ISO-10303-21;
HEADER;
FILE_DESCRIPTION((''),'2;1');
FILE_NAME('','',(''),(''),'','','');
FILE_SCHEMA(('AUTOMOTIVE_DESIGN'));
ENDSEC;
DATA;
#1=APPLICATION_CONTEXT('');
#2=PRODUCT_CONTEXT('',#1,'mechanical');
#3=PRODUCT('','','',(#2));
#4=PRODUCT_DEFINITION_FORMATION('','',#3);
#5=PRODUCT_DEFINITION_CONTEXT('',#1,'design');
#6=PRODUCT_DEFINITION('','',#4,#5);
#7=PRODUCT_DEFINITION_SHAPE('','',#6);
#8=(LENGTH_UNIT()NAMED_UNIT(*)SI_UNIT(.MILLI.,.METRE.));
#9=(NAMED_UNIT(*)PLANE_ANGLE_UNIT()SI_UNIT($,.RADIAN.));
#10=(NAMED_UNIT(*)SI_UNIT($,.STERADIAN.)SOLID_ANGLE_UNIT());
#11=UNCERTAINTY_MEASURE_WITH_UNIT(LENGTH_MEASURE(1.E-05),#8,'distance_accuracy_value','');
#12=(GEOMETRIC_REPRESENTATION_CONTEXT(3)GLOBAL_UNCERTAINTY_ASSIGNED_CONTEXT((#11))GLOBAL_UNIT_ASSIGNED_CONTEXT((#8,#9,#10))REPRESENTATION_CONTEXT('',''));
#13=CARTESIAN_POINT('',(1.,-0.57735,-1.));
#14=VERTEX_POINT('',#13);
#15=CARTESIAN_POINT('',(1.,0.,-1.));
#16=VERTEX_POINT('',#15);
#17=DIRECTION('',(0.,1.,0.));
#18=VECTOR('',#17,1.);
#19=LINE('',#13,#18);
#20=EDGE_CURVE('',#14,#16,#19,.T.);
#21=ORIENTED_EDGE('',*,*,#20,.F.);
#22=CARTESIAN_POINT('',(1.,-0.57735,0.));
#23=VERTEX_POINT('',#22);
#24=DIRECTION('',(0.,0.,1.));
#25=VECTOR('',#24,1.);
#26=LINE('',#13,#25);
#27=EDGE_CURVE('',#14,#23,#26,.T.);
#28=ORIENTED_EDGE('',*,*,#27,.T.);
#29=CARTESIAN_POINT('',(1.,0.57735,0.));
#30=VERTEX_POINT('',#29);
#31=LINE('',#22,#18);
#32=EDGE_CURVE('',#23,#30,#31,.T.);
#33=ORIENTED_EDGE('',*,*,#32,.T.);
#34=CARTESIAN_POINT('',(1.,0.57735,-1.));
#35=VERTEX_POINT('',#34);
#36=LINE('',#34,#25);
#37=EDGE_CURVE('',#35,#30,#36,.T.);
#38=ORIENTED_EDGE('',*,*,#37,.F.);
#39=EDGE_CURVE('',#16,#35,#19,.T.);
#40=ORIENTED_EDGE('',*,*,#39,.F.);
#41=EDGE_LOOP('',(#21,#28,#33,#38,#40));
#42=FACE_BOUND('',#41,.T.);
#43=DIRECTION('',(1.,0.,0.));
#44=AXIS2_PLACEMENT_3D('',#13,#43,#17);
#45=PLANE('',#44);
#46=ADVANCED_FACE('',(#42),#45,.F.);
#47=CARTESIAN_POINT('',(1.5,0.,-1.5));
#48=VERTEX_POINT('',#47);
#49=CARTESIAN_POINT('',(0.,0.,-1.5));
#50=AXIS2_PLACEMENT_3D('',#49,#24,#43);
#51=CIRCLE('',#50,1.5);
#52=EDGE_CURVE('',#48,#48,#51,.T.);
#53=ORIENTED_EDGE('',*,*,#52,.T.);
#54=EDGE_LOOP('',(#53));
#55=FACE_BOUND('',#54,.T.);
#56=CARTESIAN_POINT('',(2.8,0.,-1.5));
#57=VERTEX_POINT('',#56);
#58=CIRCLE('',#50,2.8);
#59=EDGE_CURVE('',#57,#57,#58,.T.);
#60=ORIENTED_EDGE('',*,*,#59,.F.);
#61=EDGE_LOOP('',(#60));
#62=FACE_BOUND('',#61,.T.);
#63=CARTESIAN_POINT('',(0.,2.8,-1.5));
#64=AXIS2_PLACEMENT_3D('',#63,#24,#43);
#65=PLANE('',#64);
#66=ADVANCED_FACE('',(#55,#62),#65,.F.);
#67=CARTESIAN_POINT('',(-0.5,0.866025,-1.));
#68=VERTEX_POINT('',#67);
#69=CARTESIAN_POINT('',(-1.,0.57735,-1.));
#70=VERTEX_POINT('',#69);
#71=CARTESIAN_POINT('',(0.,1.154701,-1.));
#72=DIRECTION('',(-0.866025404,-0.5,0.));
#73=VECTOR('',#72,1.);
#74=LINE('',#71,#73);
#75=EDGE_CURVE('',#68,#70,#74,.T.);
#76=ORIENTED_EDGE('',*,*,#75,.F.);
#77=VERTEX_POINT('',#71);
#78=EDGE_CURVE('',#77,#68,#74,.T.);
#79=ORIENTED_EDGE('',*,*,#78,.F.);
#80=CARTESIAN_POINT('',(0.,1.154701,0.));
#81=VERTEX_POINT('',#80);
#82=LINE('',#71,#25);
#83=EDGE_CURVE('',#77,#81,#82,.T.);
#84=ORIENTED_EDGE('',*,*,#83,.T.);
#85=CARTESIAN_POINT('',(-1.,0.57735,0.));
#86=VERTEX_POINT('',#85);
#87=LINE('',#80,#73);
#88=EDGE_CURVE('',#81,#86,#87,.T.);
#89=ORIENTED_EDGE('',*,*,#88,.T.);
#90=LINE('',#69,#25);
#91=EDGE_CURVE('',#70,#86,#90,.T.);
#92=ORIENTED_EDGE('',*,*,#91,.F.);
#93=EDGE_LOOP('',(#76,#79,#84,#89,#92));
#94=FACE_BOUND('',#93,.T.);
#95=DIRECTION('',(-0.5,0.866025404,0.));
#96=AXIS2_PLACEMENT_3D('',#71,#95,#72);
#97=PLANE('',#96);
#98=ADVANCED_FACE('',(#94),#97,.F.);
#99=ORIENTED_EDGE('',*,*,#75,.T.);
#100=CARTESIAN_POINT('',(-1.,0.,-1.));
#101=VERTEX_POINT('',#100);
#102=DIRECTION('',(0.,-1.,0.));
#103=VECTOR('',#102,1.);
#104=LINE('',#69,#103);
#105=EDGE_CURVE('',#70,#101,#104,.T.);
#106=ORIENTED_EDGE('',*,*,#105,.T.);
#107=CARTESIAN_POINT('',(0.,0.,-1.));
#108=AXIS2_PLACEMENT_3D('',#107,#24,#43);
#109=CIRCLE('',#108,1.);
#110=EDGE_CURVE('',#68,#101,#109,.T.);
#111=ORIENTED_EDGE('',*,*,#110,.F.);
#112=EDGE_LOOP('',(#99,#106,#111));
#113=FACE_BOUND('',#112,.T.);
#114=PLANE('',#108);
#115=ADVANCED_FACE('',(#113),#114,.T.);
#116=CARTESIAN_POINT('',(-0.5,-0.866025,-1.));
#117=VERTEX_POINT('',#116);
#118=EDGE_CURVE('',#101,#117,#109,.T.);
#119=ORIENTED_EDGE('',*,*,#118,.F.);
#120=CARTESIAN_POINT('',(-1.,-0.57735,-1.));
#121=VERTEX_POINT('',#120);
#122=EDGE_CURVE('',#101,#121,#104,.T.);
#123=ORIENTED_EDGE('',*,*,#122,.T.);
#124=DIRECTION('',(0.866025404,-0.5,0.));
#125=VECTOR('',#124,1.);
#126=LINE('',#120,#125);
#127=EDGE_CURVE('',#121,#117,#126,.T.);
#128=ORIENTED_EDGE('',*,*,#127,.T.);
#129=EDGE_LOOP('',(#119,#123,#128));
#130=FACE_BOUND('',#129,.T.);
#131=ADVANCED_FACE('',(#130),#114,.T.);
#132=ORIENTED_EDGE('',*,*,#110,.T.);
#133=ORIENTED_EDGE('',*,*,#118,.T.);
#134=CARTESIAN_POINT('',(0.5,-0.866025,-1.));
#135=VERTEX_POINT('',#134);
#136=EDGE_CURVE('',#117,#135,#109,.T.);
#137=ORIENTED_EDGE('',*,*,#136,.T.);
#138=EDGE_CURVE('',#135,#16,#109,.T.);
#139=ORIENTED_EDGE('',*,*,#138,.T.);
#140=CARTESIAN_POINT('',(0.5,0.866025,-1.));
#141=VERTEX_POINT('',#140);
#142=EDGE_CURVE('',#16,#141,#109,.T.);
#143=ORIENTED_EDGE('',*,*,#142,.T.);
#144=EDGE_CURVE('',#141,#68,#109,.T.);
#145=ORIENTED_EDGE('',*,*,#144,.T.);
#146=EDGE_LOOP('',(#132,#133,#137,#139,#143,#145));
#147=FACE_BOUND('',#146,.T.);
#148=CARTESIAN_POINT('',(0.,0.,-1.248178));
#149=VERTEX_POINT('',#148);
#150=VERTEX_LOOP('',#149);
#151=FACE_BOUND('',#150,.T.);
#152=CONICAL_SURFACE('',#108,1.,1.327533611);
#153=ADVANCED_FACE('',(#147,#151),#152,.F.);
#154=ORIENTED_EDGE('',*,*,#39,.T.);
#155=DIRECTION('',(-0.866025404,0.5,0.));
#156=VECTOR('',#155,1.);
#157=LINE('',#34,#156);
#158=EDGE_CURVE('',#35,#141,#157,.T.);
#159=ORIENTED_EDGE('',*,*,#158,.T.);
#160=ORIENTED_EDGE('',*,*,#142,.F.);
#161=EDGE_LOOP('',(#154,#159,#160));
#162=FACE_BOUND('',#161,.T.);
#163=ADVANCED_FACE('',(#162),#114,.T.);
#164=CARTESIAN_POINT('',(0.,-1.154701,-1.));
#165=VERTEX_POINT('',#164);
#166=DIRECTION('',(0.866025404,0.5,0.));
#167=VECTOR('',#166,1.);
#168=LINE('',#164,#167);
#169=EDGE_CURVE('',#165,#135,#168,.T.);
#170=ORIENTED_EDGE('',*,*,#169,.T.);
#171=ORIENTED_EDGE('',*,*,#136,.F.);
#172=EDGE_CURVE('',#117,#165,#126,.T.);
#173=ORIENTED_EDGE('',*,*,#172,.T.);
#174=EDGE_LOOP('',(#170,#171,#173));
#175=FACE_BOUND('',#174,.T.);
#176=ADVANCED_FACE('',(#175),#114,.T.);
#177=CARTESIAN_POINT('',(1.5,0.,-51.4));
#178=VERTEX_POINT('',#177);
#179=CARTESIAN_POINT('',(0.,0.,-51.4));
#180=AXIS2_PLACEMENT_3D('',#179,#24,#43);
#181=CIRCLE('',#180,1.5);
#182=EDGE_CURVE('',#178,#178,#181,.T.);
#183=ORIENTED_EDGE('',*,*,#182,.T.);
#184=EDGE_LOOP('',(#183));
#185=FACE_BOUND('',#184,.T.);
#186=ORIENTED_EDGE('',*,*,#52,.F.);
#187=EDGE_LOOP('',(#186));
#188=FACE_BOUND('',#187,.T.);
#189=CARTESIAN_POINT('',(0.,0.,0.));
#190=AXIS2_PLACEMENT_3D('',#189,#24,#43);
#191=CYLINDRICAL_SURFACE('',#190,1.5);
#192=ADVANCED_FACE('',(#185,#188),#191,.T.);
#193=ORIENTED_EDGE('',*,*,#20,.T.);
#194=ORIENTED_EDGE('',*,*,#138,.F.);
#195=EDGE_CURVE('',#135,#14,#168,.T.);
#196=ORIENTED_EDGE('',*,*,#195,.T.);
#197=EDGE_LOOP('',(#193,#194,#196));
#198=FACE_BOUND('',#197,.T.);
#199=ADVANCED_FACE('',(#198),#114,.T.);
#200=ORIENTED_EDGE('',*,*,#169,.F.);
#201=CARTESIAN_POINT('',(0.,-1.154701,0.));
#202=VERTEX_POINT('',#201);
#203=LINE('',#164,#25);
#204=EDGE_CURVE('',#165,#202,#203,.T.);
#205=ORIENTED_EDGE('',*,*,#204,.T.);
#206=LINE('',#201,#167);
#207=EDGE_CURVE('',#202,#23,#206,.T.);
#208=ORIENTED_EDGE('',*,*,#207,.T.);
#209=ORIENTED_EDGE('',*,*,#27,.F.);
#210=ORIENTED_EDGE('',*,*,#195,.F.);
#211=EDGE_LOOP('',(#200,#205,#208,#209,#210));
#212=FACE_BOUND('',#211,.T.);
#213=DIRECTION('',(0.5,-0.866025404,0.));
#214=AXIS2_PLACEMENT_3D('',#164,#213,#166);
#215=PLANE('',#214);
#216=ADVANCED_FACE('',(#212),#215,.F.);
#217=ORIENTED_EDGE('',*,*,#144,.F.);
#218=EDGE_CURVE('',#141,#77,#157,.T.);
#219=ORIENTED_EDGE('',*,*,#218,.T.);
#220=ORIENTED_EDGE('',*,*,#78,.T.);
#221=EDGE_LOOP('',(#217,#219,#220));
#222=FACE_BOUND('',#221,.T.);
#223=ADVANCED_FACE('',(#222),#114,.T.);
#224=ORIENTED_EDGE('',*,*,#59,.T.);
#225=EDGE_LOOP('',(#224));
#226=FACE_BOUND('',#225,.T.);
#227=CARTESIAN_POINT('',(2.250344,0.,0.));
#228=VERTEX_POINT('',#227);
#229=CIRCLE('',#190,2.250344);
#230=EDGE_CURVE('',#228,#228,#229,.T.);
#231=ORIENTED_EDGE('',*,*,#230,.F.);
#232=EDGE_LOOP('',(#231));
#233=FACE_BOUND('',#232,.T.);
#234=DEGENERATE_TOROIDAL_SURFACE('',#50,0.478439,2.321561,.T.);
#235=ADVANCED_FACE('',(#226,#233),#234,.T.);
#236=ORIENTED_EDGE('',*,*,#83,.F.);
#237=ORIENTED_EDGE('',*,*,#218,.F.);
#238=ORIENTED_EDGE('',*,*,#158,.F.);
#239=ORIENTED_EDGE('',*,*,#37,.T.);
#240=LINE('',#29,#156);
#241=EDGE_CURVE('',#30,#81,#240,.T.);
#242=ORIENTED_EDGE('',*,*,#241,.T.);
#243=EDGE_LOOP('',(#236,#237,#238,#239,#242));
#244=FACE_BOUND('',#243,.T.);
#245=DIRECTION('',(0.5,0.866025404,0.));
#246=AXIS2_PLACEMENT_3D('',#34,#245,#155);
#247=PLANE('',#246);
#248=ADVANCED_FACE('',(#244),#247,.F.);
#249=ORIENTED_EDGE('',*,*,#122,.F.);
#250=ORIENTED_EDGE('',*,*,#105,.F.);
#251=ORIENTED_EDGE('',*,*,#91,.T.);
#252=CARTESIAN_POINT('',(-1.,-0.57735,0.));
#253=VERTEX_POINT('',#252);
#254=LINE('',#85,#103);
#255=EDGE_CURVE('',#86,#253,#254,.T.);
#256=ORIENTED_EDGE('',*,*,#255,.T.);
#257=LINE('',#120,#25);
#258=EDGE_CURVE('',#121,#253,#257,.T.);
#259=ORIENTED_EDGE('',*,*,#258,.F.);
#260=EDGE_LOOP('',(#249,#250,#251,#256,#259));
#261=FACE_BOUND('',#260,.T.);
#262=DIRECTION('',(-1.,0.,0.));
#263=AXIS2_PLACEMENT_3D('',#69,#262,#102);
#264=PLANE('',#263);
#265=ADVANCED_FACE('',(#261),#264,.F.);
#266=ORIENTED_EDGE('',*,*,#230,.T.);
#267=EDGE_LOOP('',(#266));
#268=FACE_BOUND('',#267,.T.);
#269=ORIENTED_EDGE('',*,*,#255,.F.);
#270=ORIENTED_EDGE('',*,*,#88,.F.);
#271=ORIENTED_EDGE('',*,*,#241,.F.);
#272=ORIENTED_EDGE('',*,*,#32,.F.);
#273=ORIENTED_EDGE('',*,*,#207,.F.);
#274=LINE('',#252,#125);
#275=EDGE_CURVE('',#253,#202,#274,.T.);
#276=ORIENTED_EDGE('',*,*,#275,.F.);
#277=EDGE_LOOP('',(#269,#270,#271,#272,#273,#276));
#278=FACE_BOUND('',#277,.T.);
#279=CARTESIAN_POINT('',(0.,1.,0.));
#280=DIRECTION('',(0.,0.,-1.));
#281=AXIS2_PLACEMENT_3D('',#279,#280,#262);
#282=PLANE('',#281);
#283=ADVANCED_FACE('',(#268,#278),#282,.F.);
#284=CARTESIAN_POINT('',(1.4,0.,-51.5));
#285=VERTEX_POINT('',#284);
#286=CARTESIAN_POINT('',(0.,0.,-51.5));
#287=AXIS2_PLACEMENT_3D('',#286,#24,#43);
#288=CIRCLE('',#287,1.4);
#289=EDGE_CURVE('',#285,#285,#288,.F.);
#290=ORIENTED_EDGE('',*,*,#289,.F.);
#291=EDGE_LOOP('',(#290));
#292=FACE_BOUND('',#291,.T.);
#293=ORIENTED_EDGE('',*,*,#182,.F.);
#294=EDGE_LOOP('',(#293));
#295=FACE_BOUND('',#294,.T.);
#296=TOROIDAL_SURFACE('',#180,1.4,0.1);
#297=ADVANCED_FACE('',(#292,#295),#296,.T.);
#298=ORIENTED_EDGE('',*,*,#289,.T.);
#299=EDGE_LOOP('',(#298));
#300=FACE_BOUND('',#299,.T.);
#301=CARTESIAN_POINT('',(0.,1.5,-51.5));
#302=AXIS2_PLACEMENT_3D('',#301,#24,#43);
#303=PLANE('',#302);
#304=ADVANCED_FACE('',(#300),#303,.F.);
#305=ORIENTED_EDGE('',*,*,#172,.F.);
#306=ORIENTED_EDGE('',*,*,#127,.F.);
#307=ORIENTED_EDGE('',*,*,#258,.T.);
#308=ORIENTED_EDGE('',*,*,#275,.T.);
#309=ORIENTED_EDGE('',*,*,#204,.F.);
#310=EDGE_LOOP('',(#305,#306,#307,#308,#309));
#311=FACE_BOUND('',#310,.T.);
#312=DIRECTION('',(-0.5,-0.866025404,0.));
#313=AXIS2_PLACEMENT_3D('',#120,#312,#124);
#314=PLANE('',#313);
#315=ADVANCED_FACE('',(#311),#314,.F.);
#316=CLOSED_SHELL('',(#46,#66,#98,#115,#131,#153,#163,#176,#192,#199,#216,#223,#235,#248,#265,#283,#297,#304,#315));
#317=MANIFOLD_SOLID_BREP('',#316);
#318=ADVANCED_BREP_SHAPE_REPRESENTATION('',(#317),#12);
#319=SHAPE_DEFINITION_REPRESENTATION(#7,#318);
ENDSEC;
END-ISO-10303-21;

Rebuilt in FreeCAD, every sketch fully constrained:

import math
import FreeCAD as App
import Part
import Sketcher
Q = App.Units.Quantity


def edges_at(feature, points):
    """Names of the edges that pass closest to the given points."""
    edges = feature.Shape.Edges
    near = lambda p: min(range(len(edges)), key=lambda i: edges[i].distToShape(Part.Vertex(*p))[0])
    return sorted({f"Edge{near(p) + 1}" for p in points})


def add_polygon(sketch, points):
    """Adds a closed chain of lines whose ends are joined by coincident constraints."""
    first, n = sketch.GeometryCount, len(points)
    for a, b in zip(points, points[1:] + points[:1]):
        sketch.addGeometry(Part.LineSegment(App.Vector(*a, 0), App.Vector(*b, 0)), False)
    for i in range(n):
        sketch.addConstraint(Sketcher.Constraint("Coincident", first + i, 2, first + (i + 1) % n, 1))

doc = App.newDocument("Part")
body = doc.addObject("PartDesign::Body", "Body")

sketch1 = body.newObject("Sketcher::SketchObject", "Sketch")
sketch1.AttachmentSupport = (doc.getObject("YZ_Plane"), [""])
sketch1.MapMode = "FlatFace"
sketch1.addGeometry(Part.LineSegment(App.Vector(2.3, 0, 0), App.Vector(0, 0, 0)), False)
sketch1.addGeometry(Part.LineSegment(App.Vector(0, 0, 0), App.Vector(0, -1, 0)), False)
sketch1.addGeometry(Part.LineSegment(App.Vector(0, -1, 0), App.Vector(1, -1, 0)), False)
sketch1.addGeometry(Part.LineSegment(App.Vector(1, -1, 0), App.Vector(0, -1.2, 0)), False)
sketch1.addGeometry(Part.LineSegment(App.Vector(0, -1.2, 0), App.Vector(0, -51.5, 0)), False)
sketch1.addGeometry(Part.LineSegment(App.Vector(0, -51.5, 0), App.Vector(1.5, -51.5, 0)), False)
sketch1.addGeometry(Part.LineSegment(App.Vector(1.5, -51.5, 0), App.Vector(1.5, -1.5, 0)), False)
sketch1.addGeometry(Part.LineSegment(App.Vector(1.5, -1.5, 0), App.Vector(2.8, -1.5, 0)), False)
sketch1.addGeometry(Part.ArcOfCircle(Part.Circle(App.Vector(0.5, -1.5, 0), App.Vector(0, 0, 1), 2.3), math.radians(0), math.radians(40)), False)
sketch1.addConstraint(Sketcher.Constraint("Coincident", 0, 2, 1, 1))
sketch1.addConstraint(Sketcher.Constraint("Coincident", 1, 2, 2, 1))
sketch1.addConstraint(Sketcher.Constraint("Coincident", 2, 2, 3, 1))
sketch1.addConstraint(Sketcher.Constraint("Coincident", 3, 2, 4, 1))
sketch1.addConstraint(Sketcher.Constraint("Coincident", 4, 2, 5, 1))
sketch1.addConstraint(Sketcher.Constraint("Coincident", 5, 2, 6, 1))
sketch1.addConstraint(Sketcher.Constraint("Coincident", 6, 2, 7, 1))
sketch1.addConstraint(Sketcher.Constraint("Coincident", 7, 2, 8, 1))
sketch1.addConstraint(Sketcher.Constraint("Coincident", 8, 2, 0, 1))
sketch1.addConstraint(Sketcher.Constraint("Horizontal", 0))
sketch1.addConstraint(Sketcher.Constraint("Vertical", 1))
sketch1.addConstraint(Sketcher.Constraint("Horizontal", 2))
sketch1.addConstraint(Sketcher.Constraint("Vertical", 4))
sketch1.addConstraint(Sketcher.Constraint("Horizontal", 5))
sketch1.addConstraint(Sketcher.Constraint("Vertical", 6))
sketch1.addConstraint(Sketcher.Constraint("Horizontal", 7))
sketch1.addConstraint(Sketcher.Constraint("Coincident", 0, 2, -1, 1))
sketch1.addConstraint(Sketcher.Constraint("PointOnObject", 3, 2, -2))
sketch1.addConstraint(Sketcher.Constraint("Horizontal", 8, 3, 6, 2))
sketch1.addConstraint(Sketcher.Constraint("Equal", 2, 1))
sketch1.addConstraint(Sketcher.Constraint("DistanceX", 2, 1, 2, 2, Q("1 mm")))
sketch1.addConstraint(Sketcher.Constraint("DistanceY", 6, 1, 6, 2, Q("50 mm")))
sketch1.addConstraint(Sketcher.Constraint("DistanceX", 5, 1, 5, 2, Q("1.5 mm")))
sketch1.addConstraint(Sketcher.Constraint("DistanceX", 7, 1, 7, 2, Q("1.3 mm")))
sketch1.addConstraint(Sketcher.Constraint("DistanceY", 8, 3, -1, 1, Q("1.5 mm")))
sketch1.addConstraint(Sketcher.Constraint("Radius", 8, Q("2.321561 mm")))
sketch1.addConstraint(Sketcher.Constraint("DistanceY", 4, 2, 4, 1, Q("50.251822 mm")))
revolution = body.newObject("PartDesign::Revolution", "Revolution")
revolution.Profile = sketch1
revolution.ReferenceAxis = (sketch1, ["V_Axis"])
revolution.Angle = 360

sketch2 = body.newObject("Sketcher::SketchObject", "Sketch001")
sketch2.AttachmentSupport = (doc.getObject("XY_Plane"), [""])
sketch2.MapMode = "FlatFace"
add_polygon(sketch2, [(0, 1.2), (-1, 0.6), (-1, -0.6), (0, -1.2), (1, -0.6), (1, 0.6)])
sketch2.addConstraint(Sketcher.Constraint("Vertical", 1))
sketch2.addConstraint(Sketcher.Constraint("Vertical", 4))
sketch2.addConstraint(Sketcher.Constraint("Symmetric", 0, 2, 3, 2, -1, 1))
sketch2.addConstraint(Sketcher.Constraint("Symmetric", 2, 2, 5, 2, -1, 1))
sketch2.addConstraint(Sketcher.Constraint("PointOnObject", 2, 2, -2))
sketch2.addConstraint(Sketcher.Constraint("Parallel", 2, 5))
sketch2.addConstraint(Sketcher.Constraint("Horizontal", 1, 2, 3, 2))
sketch2.addConstraint(Sketcher.Constraint("Angle", 0, Q("-150 deg")))
sketch2.addConstraint(Sketcher.Constraint("DistanceX", 0, 2, -1, 1, Q("1 mm")))
sketch2.addConstraint(Sketcher.Constraint("DistanceY", 1, 2, 1, 1, Q("1.154701 mm")))
pocket1 = body.newObject("PartDesign::Pocket", "Pocket")
pocket1.Profile = sketch2
pocket1.Length = 1
doc.recompute()

fillet = body.newObject("PartDesign::Fillet", "Fillet")
fillet.Base = (pocket1, edges_at(pocket1, [(0, -1.5, -51.5)]))
fillet.Radius = 0.1

doc.recompute()
